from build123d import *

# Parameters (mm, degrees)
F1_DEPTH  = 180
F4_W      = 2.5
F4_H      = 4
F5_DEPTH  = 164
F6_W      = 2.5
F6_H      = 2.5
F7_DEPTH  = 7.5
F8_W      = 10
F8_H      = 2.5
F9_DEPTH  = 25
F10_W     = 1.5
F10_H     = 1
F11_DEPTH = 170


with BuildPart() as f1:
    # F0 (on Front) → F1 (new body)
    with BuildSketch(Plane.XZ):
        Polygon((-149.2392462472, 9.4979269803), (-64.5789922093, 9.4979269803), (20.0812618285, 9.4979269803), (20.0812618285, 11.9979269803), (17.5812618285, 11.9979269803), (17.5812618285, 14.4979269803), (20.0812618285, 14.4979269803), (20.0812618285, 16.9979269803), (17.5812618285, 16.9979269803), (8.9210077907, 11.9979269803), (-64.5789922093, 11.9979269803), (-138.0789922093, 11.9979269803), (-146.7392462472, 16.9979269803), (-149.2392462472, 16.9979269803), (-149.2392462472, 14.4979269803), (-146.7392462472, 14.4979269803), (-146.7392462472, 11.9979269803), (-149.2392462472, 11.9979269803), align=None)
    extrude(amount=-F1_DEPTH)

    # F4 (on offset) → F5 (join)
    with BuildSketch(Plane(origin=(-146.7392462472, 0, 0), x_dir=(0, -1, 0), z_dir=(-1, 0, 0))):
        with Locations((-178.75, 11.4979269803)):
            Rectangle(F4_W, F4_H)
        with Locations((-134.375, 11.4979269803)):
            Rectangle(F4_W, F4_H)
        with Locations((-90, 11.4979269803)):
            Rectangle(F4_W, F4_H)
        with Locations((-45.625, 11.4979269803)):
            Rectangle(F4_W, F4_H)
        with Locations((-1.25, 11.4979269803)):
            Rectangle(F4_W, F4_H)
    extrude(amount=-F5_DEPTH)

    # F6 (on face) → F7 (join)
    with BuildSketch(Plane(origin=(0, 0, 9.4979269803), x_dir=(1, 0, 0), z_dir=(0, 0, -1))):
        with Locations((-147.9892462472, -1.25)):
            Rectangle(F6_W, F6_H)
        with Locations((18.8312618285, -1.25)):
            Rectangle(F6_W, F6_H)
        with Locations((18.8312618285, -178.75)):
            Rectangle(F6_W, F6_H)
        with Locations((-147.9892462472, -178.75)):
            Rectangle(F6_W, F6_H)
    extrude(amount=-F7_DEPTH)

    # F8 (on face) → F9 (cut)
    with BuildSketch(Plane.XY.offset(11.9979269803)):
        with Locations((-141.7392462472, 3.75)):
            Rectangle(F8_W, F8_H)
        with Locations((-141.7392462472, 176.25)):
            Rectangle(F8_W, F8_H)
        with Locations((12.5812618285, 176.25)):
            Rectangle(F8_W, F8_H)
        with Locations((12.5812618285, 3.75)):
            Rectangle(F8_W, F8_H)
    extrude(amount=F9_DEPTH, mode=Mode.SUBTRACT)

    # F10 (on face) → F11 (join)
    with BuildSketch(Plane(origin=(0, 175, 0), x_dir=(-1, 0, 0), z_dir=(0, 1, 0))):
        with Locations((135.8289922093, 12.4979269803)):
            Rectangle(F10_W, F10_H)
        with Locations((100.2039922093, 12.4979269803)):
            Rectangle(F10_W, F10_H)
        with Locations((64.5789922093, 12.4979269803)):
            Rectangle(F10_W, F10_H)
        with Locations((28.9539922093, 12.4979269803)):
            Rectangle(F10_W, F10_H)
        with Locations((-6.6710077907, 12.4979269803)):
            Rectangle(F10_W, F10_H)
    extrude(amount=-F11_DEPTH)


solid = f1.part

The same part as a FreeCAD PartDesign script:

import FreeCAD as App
import Part
import Sketcher

V = App.Vector
Q = App.Units.Quantity


def add_polygon(sketch, points):
    """Adds a closed chain of lines whose ends are joined by coincident constraints."""
    first, n = sketch.GeometryCount, len(points)
    for a, b in zip(points, points[1:] + points[:1]):
        sketch.addGeometry(Part.LineSegment(App.Vector(*a, 0), App.Vector(*b, 0)), False)
    for i in range(n):
        sketch.addConstraint(Sketcher.Constraint("Coincident", first + i, 2, first + (i + 1) % n, 1))

doc = App.newDocument("Part")
params = doc.addObject("Spreadsheet::Sheet", "Params")
for row, (alias, value) in enumerate([
    ("sketch1_width", "147 mm"),
    ("sketch1_length", "10 mm"),
    ("pad1_length", "180 mm"),
    ("sketch2_height", "4 mm"),
    ("sketch2_width", "2.5 mm"),
    ("pad2_length", "164 mm"),
    ("sketch3_width", "2.5 mm"),
    ("pad3_length", "7.5 mm"),
    ("sketch4_width", "10 mm"),
    ("sketch4_height", "2.5 mm"),
    ("pocket1_length", "25 mm"),
    ("sketch5_height", "1 mm"),
    ("sketch5_width", "1.5 mm"),
    ("pad4_length", "170 mm"),
], start=1):
    params.set(f"A{row}", alias)
    params.set(f"B{row}", "=" + value)
    params.setAlias(f"B{row}", alias)

body = doc.addObject("PartDesign::Body", "Body")

sketch1 = body.newObject("Sketcher::SketchObject", "Sketch")
sketch1.AttachmentSupport = (doc.getObject("XZ_Plane"), [""])
sketch1.MapMode = "FlatFace"
add_polygon(sketch1, [(-149.2, 9.5), (20.1, 9.5), (20.1, 12), (17.6, 12), (17.6, 14.5), (20.1, 14.5), (20.1, 17), (17.6, 17), (8.9, 12), (-138.1, 12), (-146.7, 17), (-149.2, 17), (-149.2, 14.5), (-146.7, 14.5), (-146.7, 12), (-149.2, 12)])
sketch1.addConstraint(Sketcher.Constraint("Horizontal", 0))
sketch1.addConstraint(Sketcher.Constraint("Vertical", 1))
sketch1.addConstraint(Sketcher.Constraint("Horizontal", 2))
sketch1.addConstraint(Sketcher.Constraint("Vertical", 3))
sketch1.addConstraint(Sketcher.Constraint("Horizontal", 4))
sketch1.addConstraint(Sketcher.Constraint("Vertical", 5))
sketch1.addConstraint(Sketcher.Constraint("Horizontal", 6))
sketch1.addConstraint(Sketcher.Constraint("Horizontal", 8))
sketch1.addConstraint(Sketcher.Constraint("Horizontal", 10))
sketch1.addConstraint(Sketcher.Constraint("Vertical", 11))
sketch1.addConstraint(Sketcher.Constraint("Horizontal", 12))
sketch1.addConstraint(Sketcher.Constraint("Vertical", 13))
sketch1.addConstraint(Sketcher.Constraint("Horizontal", 14))
sketch1.addConstraint(Sketcher.Constraint("Vertical", 15))
sketch1.addConstraint(Sketcher.Constraint("Horizontal", 2, 2, 7, 2))
sketch1.addConstraint(Sketcher.Constraint("Horizontal", 6, 2, 9, 2))
sketch1.addConstraint(Sketcher.Constraint("Horizontal", 4, 2, 11, 2))
sketch1.addConstraint(Sketcher.Constraint("Horizontal", 8, 2, 13, 2))
sketch1.addConstraint(Sketcher.Constraint("Vertical", 1, 2, 4, 2))
sketch1.addConstraint(Sketcher.Constraint("Vertical", 3, 2, 6, 2))
sketch1.addConstraint(Sketcher.Constraint("Vertical", 9, 2, 12, 2))
sketch1.addConstraint(Sketcher.Constraint("Vertical", 11, 2, 14, 2))
sketch1.addConstraint(Sketcher.Constraint("Equal", 6, 10))
sketch1.addConstraint(Sketcher.Constraint("Equal", 14, 1))
sketch1.addConstraint(Sketcher.Constraint("Equal", 1, 3))
sketch1.addConstraint(Sketcher.Constraint("Equal", 3, 5))
sketch1.addConstraint(Sketcher.Constraint("Equal", 7, 9))
sketch1.addConstraint(Sketcher.Constraint("DistanceX", 8, 2, 8, 1, 147.0))
sketch1.addConstraint(Sketcher.Constraint("Angle", 7, Q("-150 deg")))
sketch1.addConstraint(Sketcher.Constraint("Distance", 7, 10.0))
sketch1.addConstraint(Sketcher.Constraint("DistanceX", -1, 1, 0, 2, 20.081262))
sketch1.addConstraint(Sketcher.Constraint("DistanceY", -1, 1, 0, 2, 9.497927))
sketch1.setExpression("Constraints[43]", "Params.sketch1_width")
sketch1.setExpression("Constraints[45]", "Params.sketch1_length")
pad1 = body.newObject("PartDesign::Pad", "Pad")
pad1.Profile = sketch1
pad1.setExpression("Length", "Params.pad1_length")
pad1.Reversed = True

sketch2 = body.newObject("Sketcher::SketchObject", "Sketch001")
sketch2.AttachmentSupport = (doc.getObject("YZ_Plane"), [""])
sketch2.MapMode = "FlatFace"
sketch2.AttachmentOffset = App.Placement(V(0, 0, -146.739246), App.Rotation())
add_polygon(sketch2, [(180, 13.5), (180, 9.5), (177.5, 9.5), (177.5, 13.5)])
add_polygon(sketch2, [(135.6, 13.5), (135.6, 9.5), (133.1, 9.5), (133.1, 13.5)])
add_polygon(sketch2, [(91.2, 13.5), (91.2, 9.5), (88.8, 9.5), (88.8, 13.5)])
add_polygon(sketch2, [(46.9, 13.5), (46.9, 9.5), (44.4, 9.5), (44.4, 13.5)])
add_polygon(sketch2, [(2.5, 13.5), (2.5, 9.5), (0, 9.5), (0, 13.5)])
sketch2.addConstraint(Sketcher.Constraint("Vertical", 0))
sketch2.addConstraint(Sketcher.Constraint("Horizontal", 1))
sketch2.addConstraint(Sketcher.Constraint("Vertical", 2))
sketch2.addConstraint(Sketcher.Constraint("Horizontal", 3))
sketch2.addConstraint(Sketcher.Constraint("Vertical", 4))
sketch2.addConstraint(Sketcher.Constraint("Horizontal", 5))
sketch2.addConstraint(Sketcher.Constraint("Vertical", 6))
sketch2.addConstraint(Sketcher.Constraint("Horizontal", 7))
sketch2.addConstraint(Sketcher.Constraint("Vertical", 8))
sketch2.addConstraint(Sketcher.Constraint("Horizontal", 9))
sketch2.addConstraint(Sketcher.Constraint("Vertical", 10))
sketch2.addConstraint(Sketcher.Constraint("Horizontal", 11))
sketch2.addConstraint(Sketcher.Constraint("Vertical", 12))
sketch2.addConstraint(Sketcher.Constraint("Horizontal", 13))
sketch2.addConstraint(Sketcher.Constraint("Vertical", 14))
sketch2.addConstraint(Sketcher.Constraint("Horizontal", 15))
sketch2.addConstraint(Sketcher.Constraint("Vertical", 16))
sketch2.addConstraint(Sketcher.Constraint("Horizontal", 17))
sketch2.addConstraint(Sketcher.Constraint("Vertical", 18))
sketch2.addConstraint(Sketcher.Constraint("Horizontal", 19))
sketch2.addConstraint(Sketcher.Constraint("PointOnObject", 17, 2, -2))
sketch2.addConstraint(Sketcher.Constraint("Horizontal", 1, 2, 4, 2))
sketch2.addConstraint(Sketcher.Constraint("Horizontal", 3, 2, 6, 2))
sketch2.addConstraint(Sketcher.Constraint("Horizontal", 5, 2, 8, 2))
sketch2.addConstraint(Sketcher.Constraint("Horizontal", 7, 2, 10, 2))
sketch2.addConstraint(Sketcher.Constraint("Horizontal", 9, 2, 12, 2))
sketch2.addConstraint(Sketcher.Constraint("Horizontal", 11, 2, 14, 2))
sketch2.addConstraint(Sketcher.Constraint("Horizontal", 13, 2, 16, 2))
sketch2.addConstraint(Sketcher.Constraint("Horizontal", 15, 2, 18, 2))
sketch2.addConstraint(Sketcher.Constraint("Equal", 3, 5))
sketch2.addConstraint(Sketcher.Constraint("Equal", 7, 9))
sketch2.addConstraint(Sketcher.Constraint("Equal", 11, 13))
sketch2.addConstraint(Sketcher.Constraint("Equal", 15, 17))
sketch2.addConstraint(Sketcher.Constraint("DistanceY", 0, 2, 0, 1, 4.0))
sketch2.addConstraint(Sketcher.Constraint("DistanceX", 1, 2, 1, 1, 2.5))
sketch2.addConstraint(Sketcher.Constraint("DistanceX", -1, 1, 0, 2, 180.0))
sketch2.addConstraint(Sketcher.Constraint("DistanceX", -1, 1, 8, 2, 91.25))
sketch2.addConstraint(Sketcher.Constraint("DistanceX", 12, 2, 5, 2, 86.25))
sketch2.addConstraint(Sketcher.Constraint("DistanceX", -1, 1, 4, 2, 135.625))
sketch2.addConstraint(Sketcher.Constraint("DistanceY", -1, 1, 0, 2, 9.497927))
sketch2.setExpression("Constraints[53]", "Params.sketch2_height")
sketch2.setExpression("Constraints[54]", "Params.sketch2_width")
pad2 = body.newObject("PartDesign::Pad", "Pad001")
pad2.Profile = sketch2
pad2.setExpression("Length", "Params.pad2_length")

sketch3 = body.newObject("Sketcher::SketchObject", "Sketch002")
sketch3.AttachmentSupport = (doc.getObject("XY_Plane"), [""])
sketch3.MapMode = "FlatFace"
sketch3.AttachmentOffset = App.Placement(V(0, 0, 9.497927), App.Rotation())
add_polygon(sketch3, [(-149.2, 0), (-149.2, 2.5), (-146.7, 2.5), (-146.7, 0)])
add_polygon(sketch3, [(17.6, 0), (17.6, 2.5), (20.1, 2.5), (20.1, 0)])
add_polygon(sketch3, [(17.6, 177.5), (17.6, 180), (20.1, 180), (20.1, 177.5)])
add_polygon(sketch3, [(-149.2, 177.5), (-149.2, 180), (-146.7, 180), (-146.7, 177.5)])
sketch3.addConstraint(Sketcher.Constraint("Vertical", 0))
sketch3.addConstraint(Sketcher.Constraint("Horizontal", 1))
sketch3.addConstraint(Sketcher.Constraint("Vertical", 2))
sketch3.addConstraint(Sketcher.Constraint("Horizontal", 3))
sketch3.addConstraint(Sketcher.Constraint("Vertical", 4))
sketch3.addConstraint(Sketcher.Constraint("Horizontal", 5))
sketch3.addConstraint(Sketcher.Constraint("Vertical", 6))
sketch3.addConstraint(Sketcher.Constraint("Horizontal", 7))
sketch3.addConstraint(Sketcher.Constraint("Vertical", 8))
sketch3.addConstraint(Sketcher.Constraint("Horizontal", 9))
sketch3.addConstraint(Sketcher.Constraint("Vertical", 10))
sketch3.addConstraint(Sketcher.Constraint("Horizontal", 11))
sketch3.addConstraint(Sketcher.Constraint("Vertical", 12))
sketch3.addConstraint(Sketcher.Constraint("Horizontal", 13))
sketch3.addConstraint(Sketcher.Constraint("Vertical", 14))
sketch3.addConstraint(Sketcher.Constraint("Horizontal", 15))
sketch3.addConstraint(Sketcher.Constraint("PointOnObject", 2, 2, -1))
sketch3.addConstraint(Sketcher.Constraint("PointOnObject", 6, 2, -1))
sketch3.addConstraint(Sketcher.Constraint("Horizontal", 1, 2, 4, 2))
sketch3.addConstraint(Sketcher.Constraint("Horizontal", 9, 2, 12, 2))
sketch3.addConstraint(Sketcher.Constraint("Horizontal", 11, 2, 14, 2))
sketch3.addConstraint(Sketcher.Constraint("Vertical", 7, 2, 8, 2))
sketch3.addConstraint(Sketcher.Constraint("Vertical", 6, 2, 9, 2))
sketch3.addConstraint(Sketcher.Constraint("Vertical", 3, 2, 12, 2))
sketch3.addConstraint(Sketcher.Constraint("Vertical", 2, 2, 13, 2))
sketch3.addConstraint(Sketcher.Constraint("Equal", 3, 5))
sketch3.addConstraint(Sketcher.Constraint("Equal", 15, 0))
sketch3.addConstraint(Sketcher.Constraint("Equal", 6, 8))
sketch3.addConstraint(Sketcher.Constraint("DistanceX", 1, 1, 1, 2, 2.5))
sketch3.addConstraint(Sketcher.Constraint("DistanceY", -1, 1, 8, 2, 180.0))
sketch3.addConstraint(Sketcher.Constraint("DistanceX", -1, 1, 4, 2, 17.581262))
sketch3.addConstraint(Sketcher.Constraint("DistanceX", 1, 2, 4, 2, 164.320508))
sketch3.setExpression("Constraints[44]", "Params.sketch3_width")
pad3 = body.newObject("PartDesign::Pad", "Pad002")
pad3.Profile = sketch3
pad3.setExpression("Length", "Params.pad3_length")

sketch4 = body.newObject("Sketcher::SketchObject", "Sketch003")
sketch4.AttachmentSupport = (doc.getObject("XY_Plane"), [""])
sketch4.MapMode = "FlatFace"
sketch4.AttachmentOffset = App.Placement(V(0, 0, 11.997927), App.Rotation())
add_polygon(sketch4, [(-146.7, 5), (-146.7, 2.5), (-136.7, 2.5), (-136.7, 5)])
add_polygon(sketch4, [(-146.7, 177.5), (-146.7, 175), (-136.7, 175), (-136.7, 177.5)])
add_polygon(sketch4, [(7.6, 177.5), (7.6, 175), (17.6, 175), (17.6, 177.5)])
add_polygon(sketch4, [(7.6, 5), (7.6, 2.5), (17.6, 2.5), (17.6, 5)])
sketch4.addConstraint(Sketcher.Constraint("Vertical", 0))
sketch4.addConstraint(Sketcher.Constraint("Horizontal", 1))
sketch4.addConstraint(Sketcher.Constraint("Vertical", 2))
sketch4.addConstraint(Sketcher.Constraint("Horizontal", 3))
sketch4.addConstraint(Sketcher.Constraint("Vertical", 4))
sketch4.addConstraint(Sketcher.Constraint("Horizontal", 5))
sketch4.addConstraint(Sketcher.Constraint("Vertical", 6))
sketch4.addConstraint(Sketcher.Constraint("Horizontal", 7))
sketch4.addConstraint(Sketcher.Constraint("Vertical", 8))
sketch4.addConstraint(Sketcher.Constraint("Horizontal", 9))
sketch4.addConstraint(Sketcher.Constraint("Vertical", 10))
sketch4.addConstraint(Sketcher.Constraint("Horizontal", 11))
sketch4.addConstraint(Sketcher.Constraint("Vertical", 12))
sketch4.addConstraint(Sketcher.Constraint("Horizontal", 13))
sketch4.addConstraint(Sketcher.Constraint("Vertical", 14))
sketch4.addConstraint(Sketcher.Constraint("Horizontal", 15))
sketch4.addConstraint(Sketcher.Constraint("Horizontal", 5, 2, 8, 2))
sketch4.addConstraint(Sketcher.Constraint("Horizontal", 7, 2, 10, 2))
sketch4.addConstraint(Sketcher.Constraint("Horizontal", 1, 2, 12, 2))
sketch4.addConstraint(Sketcher.Constraint("Horizontal", 3, 2, 14, 2))
sketch4.addConstraint(Sketcher.Constraint("Vertical", 3, 2, 4, 2))
sketch4.addConstraint(Sketcher.Constraint("Vertical", 2, 2, 5, 2))
sketch4.addConstraint(Sketcher.Constraint("Vertical", 11, 2, 12, 2))
sketch4.addConstraint(Sketcher.Constraint("Vertical", 10, 2, 13, 2))
sketch4.addConstraint(Sketcher.Constraint("Equal", 7, 9))
sketch4.addConstraint(Sketcher.Constraint("Equal", 2, 4))
sketch4.addConstraint(Sketcher.Constraint("DistanceX", 1, 1, 1, 2, 10.0))
sketch4.addConstraint(Sketcher.Constraint("DistanceY", 0, 2, 0, 1, 2.5))
sketch4.addConstraint(Sketcher.Constraint("DistanceY", -1, 1, 2, 2, 5.0))
sketch4.addConstraint(Sketcher.Constraint("DistanceY", -1, 1, 4, 2, 175.0))
sketch4.addConstraint(Sketcher.Constraint("DistanceX", -1, 1, 8, 2, 7.581262))
sketch4.addConstraint(Sketcher.Constraint("DistanceX", 5, 2, 8, 2, 144.320508))
sketch4.setExpression("Constraints[42]", "Params.sketch4_width")
sketch4.setExpression("Constraints[43]", "Params.sketch4_height")
pocket1 = body.newObject("PartDesign::Pocket", "Pocket")
pocket1.Profile = sketch4
pocket1.setExpression("Length", "Params.pocket1_length")
pocket1.Reversed = True

sketch5 = body.newObject("Sketcher::SketchObject", "Sketch004")
sketch5.AttachmentSupport = (doc.getObject("XZ_Plane"), [""])
sketch5.MapMode = "FlatFace"
sketch5.AttachmentOffset = App.Placement(V(0, 0, -175), App.Rotation())
add_polygon(sketch5, [(-135.1, 13), (-135.1, 12), (-136.6, 12), (-136.6, 13)])
add_polygon(sketch5, [(-99.5, 13), (-99.5, 12), (-101, 12), (-101, 13)])
add_polygon(sketch5, [(-63.8, 13), (-63.8, 12), (-65.3, 12), (-65.3, 13)])
add_polygon(sketch5, [(-28.2, 13), (-28.2, 12), (-29.7, 12), (-29.7, 13)])
add_polygon(sketch5, [(7.4, 13), (7.4, 12), (5.9, 12), (5.9, 13)])
sketch5.addConstraint(Sketcher.Constraint("Vertical", 0))
sketch5.addConstraint(Sketcher.Constraint("Horizontal", 1))
sketch5.addConstraint(Sketcher.Constraint("Vertical", 2))
sketch5.addConstraint(Sketcher.Constraint("Horizontal", 3))
sketch5.addConstraint(Sketcher.Constraint("Vertical", 4))
sketch5.addConstraint(Sketcher.Constraint("Horizontal", 5))
sketch5.addConstraint(Sketcher.Constraint("Vertical", 6))
sketch5.addConstraint(Sketcher.Constraint("Horizontal", 7))
sketch5.addConstraint(Sketcher.Constraint("Vertical", 8))
sketch5.addConstraint(Sketcher.Constraint("Horizontal", 9))
sketch5.addConstraint(Sketcher.Constraint("Vertical", 10))
sketch5.addConstraint(Sketcher.Constraint("Horizontal", 11))
sketch5.addConstraint(Sketcher.Constraint("Vertical", 12))
sketch5.addConstraint(Sketcher.Constraint("Horizontal", 13))
sketch5.addConstraint(Sketcher.Constraint("Vertical", 14))
sketch5.addConstraint(Sketcher.Constraint("Horizontal", 15))
sketch5.addConstraint(Sketcher.Constraint("Vertical", 16))
sketch5.addConstraint(Sketcher.Constraint("Horizontal", 17))
sketch5.addConstraint(Sketcher.Constraint("Vertical", 18))
sketch5.addConstraint(Sketcher.Constraint("Horizontal", 19))
sketch5.addConstraint(Sketcher.Constraint("Horizontal", 1, 2, 4, 2))
sketch5.addConstraint(Sketcher.Constraint("Horizontal", 3, 2, 6, 2))
sketch5.addConstraint(Sketcher.Constraint("Horizontal", 5, 2, 8, 2))
sketch5.addConstraint(Sketcher.Constraint("Horizontal", 7, 2, 10, 2))
sketch5.addConstraint(Sketcher.Constraint("Horizontal", 9, 2, 12, 2))
sketch5.addConstraint(Sketcher.Constraint("Horizontal", 11, 2, 14, 2))
sketch5.addConstraint(Sketcher.Constraint("Horizontal", 13, 2, 16, 2))
sketch5.addConstraint(Sketcher.Constraint("Horizontal", 15, 2, 18, 2))
sketch5.addConstraint(Sketcher.Constraint("Equal", 3, 5))
sketch5.addConstraint(Sketcher.Constraint("Equal", 7, 9))
sketch5.addConstraint(Sketcher.Constraint("Equal", 11, 13))
sketch5.addConstraint(Sketcher.Constraint("Equal", 15, 17))
sketch5.addConstraint(Sketcher.Constraint("DistanceY", 0, 2, 0, 1, 1.0))
sketch5.addConstraint(Sketcher.Constraint("DistanceX", 1, 2, 1, 1, 1.5))
sketch5.addConstraint(Sketcher.Constraint("DistanceX", 0, 2, 8, 2, 71.25))
sketch5.addConstraint(Sketcher.Constraint("DistanceX", 4, 2, 12, 2, 71.25))
sketch5.addConstraint(Sketcher.Constraint("DistanceX", 8, 2, 16, 2, 71.25))
sketch5.addConstraint(Sketcher.Constraint("DistanceX", 0, 2, 4, 2, 35.625))
sketch5.addConstraint(Sketcher.Constraint("DistanceX", 0, 2, -1, 1, 135.078992))
sketch5.addConstraint(Sketcher.Constraint("DistanceY", -1, 1, 0, 2, 11.997927))
sketch5.setExpression("Constraints[52]", "Params.sketch5_height")
sketch5.setExpression("Constraints[53]", "Params.sketch5_width")
pad4 = body.newObject("PartDesign::Pad", "Pad003")
pad4.Profile = sketch5
pad4.setExpression("Length", "Params.pad4_length")

doc.recompute()
